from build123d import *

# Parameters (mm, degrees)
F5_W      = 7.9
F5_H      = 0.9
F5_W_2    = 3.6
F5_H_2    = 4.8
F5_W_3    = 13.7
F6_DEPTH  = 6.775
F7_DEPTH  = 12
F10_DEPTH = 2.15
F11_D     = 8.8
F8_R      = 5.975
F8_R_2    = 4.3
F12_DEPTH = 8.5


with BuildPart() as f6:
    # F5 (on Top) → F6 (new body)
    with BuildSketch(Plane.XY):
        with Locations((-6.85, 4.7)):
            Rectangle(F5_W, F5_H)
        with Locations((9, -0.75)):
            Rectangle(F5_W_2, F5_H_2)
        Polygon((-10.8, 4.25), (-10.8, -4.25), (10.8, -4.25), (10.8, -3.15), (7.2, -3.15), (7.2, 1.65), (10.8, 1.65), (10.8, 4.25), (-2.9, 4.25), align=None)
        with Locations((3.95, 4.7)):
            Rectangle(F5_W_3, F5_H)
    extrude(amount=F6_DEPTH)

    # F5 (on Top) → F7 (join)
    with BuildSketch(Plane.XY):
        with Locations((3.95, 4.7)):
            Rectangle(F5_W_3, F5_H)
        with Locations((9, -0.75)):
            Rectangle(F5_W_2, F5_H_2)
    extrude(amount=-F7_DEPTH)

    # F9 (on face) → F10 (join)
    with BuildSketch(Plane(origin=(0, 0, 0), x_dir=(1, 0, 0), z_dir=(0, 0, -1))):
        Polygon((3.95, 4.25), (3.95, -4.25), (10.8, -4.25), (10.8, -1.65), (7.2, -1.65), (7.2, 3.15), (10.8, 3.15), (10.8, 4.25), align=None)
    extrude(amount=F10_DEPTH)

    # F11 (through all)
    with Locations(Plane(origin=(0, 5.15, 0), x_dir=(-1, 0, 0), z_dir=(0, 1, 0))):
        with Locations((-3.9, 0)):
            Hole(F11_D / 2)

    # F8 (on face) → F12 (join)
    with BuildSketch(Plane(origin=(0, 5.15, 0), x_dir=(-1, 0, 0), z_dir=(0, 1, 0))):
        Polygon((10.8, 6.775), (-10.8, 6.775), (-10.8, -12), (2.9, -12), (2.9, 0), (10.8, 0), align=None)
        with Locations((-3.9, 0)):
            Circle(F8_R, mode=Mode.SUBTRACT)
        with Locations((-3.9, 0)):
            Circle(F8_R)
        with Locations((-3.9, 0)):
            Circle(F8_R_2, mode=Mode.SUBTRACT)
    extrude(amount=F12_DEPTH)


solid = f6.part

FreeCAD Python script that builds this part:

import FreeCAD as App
import Part
import Sketcher

V = App.Vector


def add_polygon(sketch, points):
    """Adds a closed chain of lines whose ends are joined by coincident constraints."""
    first, n = sketch.GeometryCount, len(points)
    for a, b in zip(points, points[1:] + points[:1]):
        sketch.addGeometry(Part.LineSegment(App.Vector(*a, 0), App.Vector(*b, 0)), False)
    for i in range(n):
        sketch.addConstraint(Sketcher.Constraint("Coincident", first + i, 2, first + (i + 1) % n, 1))

doc = App.newDocument("Part")
params = doc.addObject("Spreadsheet::Sheet", "Params")
for row, (alias, value) in enumerate([
    ("sketch1_width", "21.6 mm"),
    ("sketch1_height", "9.4 mm"),
    ("pad1_length", "6.775 mm"),
    ("sketch2_width", "13.7 mm"),
    ("sketch2_width2", "3.6 mm"),
    ("sketch2_height", "0.9 mm"),
    ("sketch2_height2", "4.8 mm"),
    ("pad2_length", "12 mm"),
    ("sketch3_width", "3.6 mm"),
    ("sketch3_height", "8.5 mm"),
    ("sketch3_height2", "2.6 mm"),
    ("sketch3_height3", "4.8 mm"),
    ("sketch3_width2", "6.85 mm"),
    ("pad3_length", "2.15 mm"),
    ("sketch4_diameter", "8.8 mm"),
    ("hole_diameter", "8.8 mm"),
    ("sketch5_diameter", "8.6 mm"),
    ("sketch5_height", "12 mm"),
    ("sketch5_width", "21.6 mm"),
    ("sketch5_width2", "13.7 mm"),
    ("pad4_length", "8.5 mm"),
], start=1):
    params.set(f"A{row}", alias)
    params.set(f"B{row}", "=" + value)
    params.setAlias(f"B{row}", alias)

body = doc.addObject("PartDesign::Body", "Body")

# Sketch on XY plane
sketch1 = body.newObject("Sketcher::SketchObject", "Sketch")
sketch1.AttachmentSupport = (doc.getObject("XY_Plane"), [""])
sketch1.MapMode = "FlatFace"
add_polygon(sketch1, [(-11, 5), (-11, -4), (11, -4), (11, 5)])  # lines 0-3
sketch1.addConstraint(Sketcher.Constraint("Vertical", 0))
sketch1.addConstraint(Sketcher.Constraint("Horizontal", 1))
sketch1.addConstraint(Sketcher.Constraint("Vertical", 2))
sketch1.addConstraint(Sketcher.Constraint("Horizontal", 3))
sketch1.addConstraint(Sketcher.Constraint("DistanceX", 1, 1, 1, 2, 21.6))
sketch1.addConstraint(Sketcher.Constraint("DistanceY", 0, 2, 0, 1, 9.4))
sketch1.addConstraint(Sketcher.Constraint("DistanceX", 0, 2, -1, 1, 10.8))
sketch1.addConstraint(Sketcher.Constraint("DistanceY", 0, 2, -1, 1, 4.25))
sketch1.setExpression("Constraints[8]", "Params.sketch1_width")
sketch1.setExpression("Constraints[9]", "Params.sketch1_height")
pad1 = body.newObject("PartDesign::Pad", "Pad")
pad1.Profile = sketch1
pad1.setExpression("Length", "Params.pad1_length")

# Sketch on XY plane
sketch2 = body.newObject("Sketcher::SketchObject", "Sketch001")
sketch2.AttachmentSupport = (doc.getObject("XY_Plane"), [""])
sketch2.MapMode = "FlatFace"
add_polygon(sketch2, [(-2.9, 5.2), (-2.9, 4.2), (10.8, 4.2), (10.8, 5.2)])  # lines 0-3
add_polygon(sketch2, [(7.2, 1.6), (7.2, -3.1), (10.8, -3.1), (10.8, 1.6)])  # lines 4-7
sketch2.addConstraint(Sketcher.Constraint("Vertical", 0))
sketch2.addConstraint(Sketcher.Constraint("Horizontal", 1))
sketch2.addConstraint(Sketcher.Constraint("Vertical", 2))
sketch2.addConstraint(Sketcher.Constraint("Horizontal", 3))
sketch2.addConstraint(Sketcher.Constraint("Vertical", 4))
sketch2.addConstraint(Sketcher.Constraint("Horizontal", 5))
sketch2.addConstraint(Sketcher.Constraint("Vertical", 6))
sketch2.addConstraint(Sketcher.Constraint("Horizontal", 7))
sketch2.addConstraint(Sketcher.Constraint("Vertical", 2, 2, 5, 2))
sketch2.addConstraint(Sketcher.Constraint("DistanceX", 1, 1, 1, 2, 13.7))
sketch2.addConstraint(Sketcher.Constraint("DistanceX", 5, 1, 5, 2, 3.6))
sketch2.addConstraint(Sketcher.Constraint("DistanceY", 0, 2, 0, 1, 0.9))
sketch2.addConstraint(Sketcher.Constraint("DistanceY", 4, 2, 4, 1, 4.8))
sketch2.addConstraint(Sketcher.Constraint("DistanceX", 0, 2, -1, 1, 2.9))
sketch2.addConstraint(Sketcher.Constraint("DistanceY", 4, 2, 1, 2, 7.4))
sketch2.addConstraint(Sketcher.Constraint("DistanceY", -1, 1, 0, 2, 4.25))
sketch2.setExpression("Constraints[17]", "Params.sketch2_width")
sketch2.setExpression("Constraints[18]", "Params.sketch2_width2")
sketch2.setExpression("Constraints[19]", "Params.sketch2_height")
sketch2.setExpression("Constraints[20]", "Params.sketch2_height2")
pad2 = body.newObject("PartDesign::Pad", "Pad001")
pad2.Profile = sketch2
pad2.setExpression("Length", "Params.pad2_length")
pad2.Reversed = True

# Sketch on XY plane
sketch3 = body.newObject("Sketcher::SketchObject", "Sketch002")
sketch3.AttachmentSupport = (doc.getObject("XY_Plane"), [""])
sketch3.MapMode = "FlatFace"
add_polygon(sketch3, [(4, -4.2), (4, 4.2), (10.8, 4.2), (10.8, 1.6), (7.2, 1.6), (7.2, -3.1), (10.8, -3.1), (10.8, -4.2)])  # lines 0-7
sketch3.addConstraint(Sketcher.Constraint("Vertical", 0))
sketch3.addConstraint(Sketcher.Constraint("Horizontal", 1))
sketch3.addConstraint(Sketcher.Constraint("Vertical", 2))
sketch3.addConstraint(Sketcher.Constraint("Horizontal", 3))
sketch3.addConstraint(Sketcher.Constraint("Vertical", 4))
sketch3.addConstraint(Sketcher.Constraint("Horizontal", 5))
sketch3.addConstraint(Sketcher.Constraint("Vertical", 6))
sketch3.addConstraint(Sketcher.Constraint("Horizontal", 7))
sketch3.addConstraint(Sketcher.Constraint("Symmetric", 1, 2, 6, 2, -1))
sketch3.addConstraint(Sketcher.Constraint("DistanceX", 3, 2, 3, 1, 3.6))
sketch3.addConstraint(Sketcher.Constraint("DistanceY", 0, 1, 0, 2, 8.5))
sketch3.addConstraint(Sketcher.Constraint("DistanceY", 2, 2, 2, 1, 2.6))
sketch3.addConstraint(Sketcher.Constraint("DistanceY", 4, 2, 4, 1, 4.8))
sketch3.addConstraint(Sketcher.Constraint("DistanceX", 1, 1, 1, 2, 6.85))
sketch3.addConstraint(Sketcher.Constraint("DistanceX", -1, 1, 1, 2, 10.8))
sketch3.setExpression("Constraints[17]", "Params.sketch3_width")
sketch3.setExpression("Constraints[18]", "Params.sketch3_height")
sketch3.setExpression("Constraints[19]", "Params.sketch3_height2")
sketch3.setExpression("Constraints[20]", "Params.sketch3_height3")
sketch3.setExpression("Constraints[21]", "Params.sketch3_width2")
pad3 = body.newObject("PartDesign::Pad", "Pad002")
pad3.Profile = sketch3
pad3.setExpression("Length", "Params.pad3_length")
pad3.Reversed = True

# Sketch on XZ plane
sketch4 = body.newObject("Sketcher::SketchObject", "Sketch003")
sketch4.AttachmentSupport = (doc.getObject("XZ_Plane"), [""])
sketch4.MapMode = "FlatFace"
sketch4.AttachmentOffset = App.Placement(V(0, 0, -5.15), App.Rotation())
sketch4.addGeometry(Part.Circle(V(3.9, 0, 0), V(0, 0, 1), 4.4), False)
sketch4.addConstraint(Sketcher.Constraint("PointOnObject", 0, 3, -1))
sketch4.addConstraint(Sketcher.Constraint("Diameter", 0, 8.8))
sketch4.addConstraint(Sketcher.Constraint("DistanceX", -1, 1, 0, 3, 3.9))
sketch4.setExpression("Constraints[1]", "Params.sketch4_diameter")
doc.recompute()
hole = body.newObject("PartDesign::Hole", "Hole")
hole.Profile = sketch4
hole.ThreadType = "None"
hole.setExpression("Diameter", "Params.hole_diameter")
hole.DepthType = "ThroughAll"
hole.Reversed = True

# Sketch on XZ plane
sketch5 = body.newObject("Sketcher::SketchObject", "Sketch004")
sketch5.AttachmentSupport = (doc.getObject("XZ_Plane"), [""])
sketch5.MapMode = "FlatFace"
sketch5.AttachmentOffset = App.Placement(V(0, 0, -5.15), App.Rotation())
add_polygon(sketch5, [(-10.8, 6.8), (10.8, 6.8), (10.8, -12), (-2.9, -12), (-2.9, 0), (-10.8, 0)])  # lines 0-5
sketch5.addGeometry(Part.Circle(V(3.9, 0, 0), V(0, 0, 1), 4.3), False)  # 6
sketch5.addConstraint(Sketcher.Constraint("Horizontal", 0))
sketch5.addConstraint(Sketcher.Constraint("Vertical", 1))
sketch5.addConstraint(Sketcher.Constraint("Horizontal", 2))
sketch5.addConstraint(Sketcher.Constraint("Vertical", 3))
sketch5.addConstraint(Sketcher.Constraint("Horizontal", 4))
sketch5.addConstraint(Sketcher.Constraint("Vertical", 5))
sketch5.addConstraint(Sketcher.Constraint("PointOnObject", 6, 3, -1))
sketch5.addConstraint(Sketcher.Constraint("PointOnObject", 3, 2, -1))
sketch5.addConstraint(Sketcher.Constraint("Diameter", 6, 8.6))
sketch5.addConstraint(Sketcher.Constraint("DistanceY", 3, 1, 3, 2, 12.0))
sketch5.addConstraint(Sketcher.Constraint("DistanceX", 0, 1, 0, 2, 21.6))
sketch5.addConstraint(Sketcher.Constraint("DistanceX", 2, 2, 2, 1, 13.7))
sketch5.addConstraint(Sketcher.Constraint("DistanceX", -1, 1, 6, 3, 3.9))
sketch5.addConstraint(Sketcher.Constraint("DistanceX", -1, 1, 0, 2, 10.8))
sketch5.addConstraint(Sketcher.Constraint("DistanceY", 1, 2, 1, 1, 18.775))
sketch5.setExpression("Constraints[14]", "Params.sketch5_diameter")
sketch5.setExpression("Constraints[15]", "Params.sketch5_height")
sketch5.setExpression("Constraints[16]", "Params.sketch5_width")
sketch5.setExpression("Constraints[17]", "Params.sketch5_width2")
pad4 = body.newObject("PartDesign::Pad", "Pad003")
pad4.Profile = sketch5
pad4.setExpression("Length", "Params.pad4_length")
pad4.Reversed = True

doc.recompute()
